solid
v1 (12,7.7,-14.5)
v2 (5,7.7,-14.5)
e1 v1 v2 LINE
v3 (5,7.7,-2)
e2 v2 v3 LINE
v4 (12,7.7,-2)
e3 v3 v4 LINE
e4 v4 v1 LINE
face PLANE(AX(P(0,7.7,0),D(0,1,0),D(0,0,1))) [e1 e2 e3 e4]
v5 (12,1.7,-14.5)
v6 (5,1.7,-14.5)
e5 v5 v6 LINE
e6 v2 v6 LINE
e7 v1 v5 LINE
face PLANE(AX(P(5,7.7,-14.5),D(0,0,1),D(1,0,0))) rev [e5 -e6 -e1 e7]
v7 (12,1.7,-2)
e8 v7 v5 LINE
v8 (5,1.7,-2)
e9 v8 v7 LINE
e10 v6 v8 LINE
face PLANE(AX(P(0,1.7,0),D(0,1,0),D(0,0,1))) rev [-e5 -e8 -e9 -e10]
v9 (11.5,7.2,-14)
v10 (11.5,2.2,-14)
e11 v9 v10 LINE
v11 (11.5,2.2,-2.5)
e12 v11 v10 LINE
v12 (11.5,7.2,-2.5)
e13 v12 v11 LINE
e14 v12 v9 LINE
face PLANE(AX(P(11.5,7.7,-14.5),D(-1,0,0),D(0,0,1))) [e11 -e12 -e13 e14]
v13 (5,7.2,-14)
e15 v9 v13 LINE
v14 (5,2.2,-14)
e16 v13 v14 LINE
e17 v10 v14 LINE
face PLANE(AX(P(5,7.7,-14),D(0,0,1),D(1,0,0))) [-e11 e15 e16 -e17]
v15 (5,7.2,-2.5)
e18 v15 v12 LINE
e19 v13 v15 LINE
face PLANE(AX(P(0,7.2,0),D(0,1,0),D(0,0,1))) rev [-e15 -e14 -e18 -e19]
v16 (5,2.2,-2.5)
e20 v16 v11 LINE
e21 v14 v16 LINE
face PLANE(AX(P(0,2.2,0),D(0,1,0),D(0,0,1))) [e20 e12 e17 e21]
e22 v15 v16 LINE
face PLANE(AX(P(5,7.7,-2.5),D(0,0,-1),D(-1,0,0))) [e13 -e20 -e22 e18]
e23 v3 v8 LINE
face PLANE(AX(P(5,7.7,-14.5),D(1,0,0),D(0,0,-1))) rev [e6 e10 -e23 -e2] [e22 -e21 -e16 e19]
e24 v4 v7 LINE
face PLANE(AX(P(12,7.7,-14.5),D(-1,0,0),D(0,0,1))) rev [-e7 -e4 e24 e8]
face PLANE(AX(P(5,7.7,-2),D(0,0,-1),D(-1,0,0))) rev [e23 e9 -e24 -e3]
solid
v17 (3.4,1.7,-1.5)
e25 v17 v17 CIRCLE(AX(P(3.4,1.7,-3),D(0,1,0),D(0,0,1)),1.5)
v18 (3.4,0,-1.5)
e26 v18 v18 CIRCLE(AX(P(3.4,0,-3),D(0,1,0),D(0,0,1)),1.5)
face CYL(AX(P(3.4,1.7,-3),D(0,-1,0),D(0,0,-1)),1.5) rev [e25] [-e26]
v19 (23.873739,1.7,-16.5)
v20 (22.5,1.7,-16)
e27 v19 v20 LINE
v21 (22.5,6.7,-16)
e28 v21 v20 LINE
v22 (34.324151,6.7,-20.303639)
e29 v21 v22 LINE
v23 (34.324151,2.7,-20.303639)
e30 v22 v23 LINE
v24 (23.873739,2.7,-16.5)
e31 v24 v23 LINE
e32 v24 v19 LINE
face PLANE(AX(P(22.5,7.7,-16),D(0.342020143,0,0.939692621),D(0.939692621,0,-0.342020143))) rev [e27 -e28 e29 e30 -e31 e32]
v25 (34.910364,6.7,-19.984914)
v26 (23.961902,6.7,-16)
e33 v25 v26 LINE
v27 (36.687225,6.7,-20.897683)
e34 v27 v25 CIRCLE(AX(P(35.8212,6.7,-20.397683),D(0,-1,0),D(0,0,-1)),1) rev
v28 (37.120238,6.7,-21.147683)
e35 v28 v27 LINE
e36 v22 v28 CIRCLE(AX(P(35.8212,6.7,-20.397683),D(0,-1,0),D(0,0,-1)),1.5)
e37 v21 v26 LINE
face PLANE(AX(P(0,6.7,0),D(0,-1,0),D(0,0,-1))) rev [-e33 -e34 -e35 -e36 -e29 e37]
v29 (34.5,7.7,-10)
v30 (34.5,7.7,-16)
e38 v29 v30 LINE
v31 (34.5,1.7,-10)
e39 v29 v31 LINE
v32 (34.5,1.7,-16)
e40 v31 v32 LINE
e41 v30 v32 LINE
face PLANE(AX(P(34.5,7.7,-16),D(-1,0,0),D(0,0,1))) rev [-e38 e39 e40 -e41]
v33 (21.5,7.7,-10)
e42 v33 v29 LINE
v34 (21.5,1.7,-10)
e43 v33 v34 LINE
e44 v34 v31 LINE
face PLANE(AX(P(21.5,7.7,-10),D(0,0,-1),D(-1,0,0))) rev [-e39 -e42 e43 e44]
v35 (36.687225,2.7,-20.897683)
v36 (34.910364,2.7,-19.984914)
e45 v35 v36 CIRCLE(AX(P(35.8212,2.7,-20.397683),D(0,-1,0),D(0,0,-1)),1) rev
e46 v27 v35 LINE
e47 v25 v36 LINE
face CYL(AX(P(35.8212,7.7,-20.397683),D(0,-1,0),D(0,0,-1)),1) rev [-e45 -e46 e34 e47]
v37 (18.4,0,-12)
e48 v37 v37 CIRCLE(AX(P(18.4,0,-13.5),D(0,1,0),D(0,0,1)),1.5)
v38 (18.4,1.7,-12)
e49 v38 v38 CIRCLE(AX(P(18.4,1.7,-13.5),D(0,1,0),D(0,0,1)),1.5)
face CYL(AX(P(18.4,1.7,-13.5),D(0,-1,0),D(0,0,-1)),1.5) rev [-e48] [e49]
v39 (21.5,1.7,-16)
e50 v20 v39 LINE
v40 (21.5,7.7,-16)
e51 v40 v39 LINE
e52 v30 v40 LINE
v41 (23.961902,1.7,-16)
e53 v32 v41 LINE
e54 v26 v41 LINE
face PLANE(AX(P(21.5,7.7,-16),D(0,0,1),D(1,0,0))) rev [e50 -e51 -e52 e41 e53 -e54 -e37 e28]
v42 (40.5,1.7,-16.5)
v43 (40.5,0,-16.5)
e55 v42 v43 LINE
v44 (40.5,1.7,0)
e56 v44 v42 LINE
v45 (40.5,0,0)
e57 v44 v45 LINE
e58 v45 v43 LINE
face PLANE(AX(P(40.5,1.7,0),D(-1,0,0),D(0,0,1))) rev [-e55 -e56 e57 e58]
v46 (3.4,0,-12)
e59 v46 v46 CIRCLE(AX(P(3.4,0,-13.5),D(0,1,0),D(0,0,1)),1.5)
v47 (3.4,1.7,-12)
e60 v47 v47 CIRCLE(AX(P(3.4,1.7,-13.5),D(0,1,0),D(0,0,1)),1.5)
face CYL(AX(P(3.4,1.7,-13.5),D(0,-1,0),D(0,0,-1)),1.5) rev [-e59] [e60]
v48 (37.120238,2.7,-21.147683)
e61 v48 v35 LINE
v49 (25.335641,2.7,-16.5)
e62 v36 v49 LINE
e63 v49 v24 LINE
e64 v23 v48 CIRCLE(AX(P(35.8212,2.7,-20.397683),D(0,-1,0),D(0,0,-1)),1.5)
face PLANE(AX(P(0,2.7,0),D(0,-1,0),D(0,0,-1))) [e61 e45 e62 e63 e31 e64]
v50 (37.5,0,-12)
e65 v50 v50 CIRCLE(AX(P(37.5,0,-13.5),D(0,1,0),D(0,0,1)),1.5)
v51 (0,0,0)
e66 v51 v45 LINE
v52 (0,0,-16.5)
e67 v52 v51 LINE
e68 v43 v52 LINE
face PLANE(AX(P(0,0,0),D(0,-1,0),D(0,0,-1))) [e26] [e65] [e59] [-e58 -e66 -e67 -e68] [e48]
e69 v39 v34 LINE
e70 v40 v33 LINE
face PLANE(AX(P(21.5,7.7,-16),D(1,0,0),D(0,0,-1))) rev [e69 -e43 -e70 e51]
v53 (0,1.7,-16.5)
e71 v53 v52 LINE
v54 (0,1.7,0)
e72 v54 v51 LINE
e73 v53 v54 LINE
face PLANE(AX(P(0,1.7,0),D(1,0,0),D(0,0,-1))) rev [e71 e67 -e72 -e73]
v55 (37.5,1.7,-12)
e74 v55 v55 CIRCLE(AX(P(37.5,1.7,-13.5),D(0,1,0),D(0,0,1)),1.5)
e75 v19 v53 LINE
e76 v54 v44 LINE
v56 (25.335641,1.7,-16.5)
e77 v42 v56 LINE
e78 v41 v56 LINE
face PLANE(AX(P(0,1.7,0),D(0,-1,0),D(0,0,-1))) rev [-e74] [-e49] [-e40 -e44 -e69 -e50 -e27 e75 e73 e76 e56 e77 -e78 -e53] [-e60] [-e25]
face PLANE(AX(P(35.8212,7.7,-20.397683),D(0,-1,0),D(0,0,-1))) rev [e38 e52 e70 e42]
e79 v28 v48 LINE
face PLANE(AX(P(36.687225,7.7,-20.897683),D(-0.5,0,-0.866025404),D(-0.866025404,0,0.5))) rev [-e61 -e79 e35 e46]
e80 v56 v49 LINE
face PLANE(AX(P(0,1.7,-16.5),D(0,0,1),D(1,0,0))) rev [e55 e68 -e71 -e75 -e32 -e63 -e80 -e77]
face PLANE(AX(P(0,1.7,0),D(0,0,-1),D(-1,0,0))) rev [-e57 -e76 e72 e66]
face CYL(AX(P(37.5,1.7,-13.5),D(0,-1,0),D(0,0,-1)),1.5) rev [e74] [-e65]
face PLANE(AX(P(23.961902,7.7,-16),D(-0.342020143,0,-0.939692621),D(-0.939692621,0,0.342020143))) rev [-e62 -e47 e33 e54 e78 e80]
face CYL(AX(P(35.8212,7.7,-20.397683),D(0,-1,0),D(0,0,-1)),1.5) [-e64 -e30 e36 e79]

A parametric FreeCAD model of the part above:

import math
import FreeCAD as App
import Part
import Sketcher
from FreeCAD import Vector
Q = App.Units.Quantity


def faces_at(feature, points):
    """Names of the faces that lie closest to the given points."""
    faces = feature.Shape.Faces
    near = lambda p: min(range(len(faces)), key=lambda i: faces[i].distToShape(Part.Vertex(*p))[0])
    return sorted({f"Face{near(p) + 1}" for p in points})

doc = App.newDocument("Part")
body = doc.addObject("PartDesign::Body", "Body")

# Sketch on XZ plane
sketch1 = doc.addObject("Sketcher::SketchObject", "Sketch")
body.addObject(sketch1)
sketch1.AttachmentSupport = (doc.XZ_Plane, [""])
sketch1.MapMode = "FlatFace"
sketch1.addGeometry(Part.LineSegment(Vector(0, -16.5, 0), Vector(0, 0, 0)), False)
sketch1.addGeometry(Part.LineSegment(Vector(0, 0, 0), Vector(40.5, 0, 0)), False)
sketch1.addGeometry(Part.LineSegment(Vector(40.5, 0, 0), Vector(40.5, -16.5, 0)), False)
sketch1.addGeometry(Part.LineSegment(Vector(40.5, -16.5, 0), Vector(0, -16.5, 0)), False)
sketch1.addGeometry(Part.Circle(Vector(3.4, -3, 0), Vector(0, 0, 1), 1.5), False)
sketch1.addGeometry(Part.Circle(Vector(3.4, -13.5, 0), Vector(0, 0, 1), 1.5), False)
sketch1.addGeometry(Part.Circle(Vector(18.4, -13.5, 0), Vector(0, 0, 1), 1.5), False)
sketch1.addGeometry(Part.Circle(Vector(37.5, -13.5, 0), Vector(0, 0, 1), 1.5), False)
sketch1.addConstraint(Sketcher.Constraint("Coincident", 0, 2, 1, 1))
sketch1.addConstraint(Sketcher.Constraint("Coincident", 1, 2, 2, 1))
sketch1.addConstraint(Sketcher.Constraint("Coincident", 2, 2, 3, 1))
sketch1.addConstraint(Sketcher.Constraint("Coincident", 3, 2, 0, 1))
sketch1.addConstraint(Sketcher.Constraint("Vertical", 0))
sketch1.addConstraint(Sketcher.Constraint("Horizontal", 1))
sketch1.addConstraint(Sketcher.Constraint("Vertical", 2))
sketch1.addConstraint(Sketcher.Constraint("Horizontal", 3))
sketch1.addConstraint(Sketcher.Constraint("Coincident", 0, 2, -1, 1))
sketch1.addConstraint(Sketcher.Constraint("Equal", 4, 5))
sketch1.addConstraint(Sketcher.Constraint("Equal", 5, 6))
sketch1.addConstraint(Sketcher.Constraint("Equal", 6, 7))
sketch1.addConstraint(Sketcher.Constraint("Horizontal", 5, 3, 6, 3))
sketch1.addConstraint(Sketcher.Constraint("Horizontal", 6, 3, 7, 3))
sketch1.addConstraint(Sketcher.Constraint("Vertical", 4, 3, 5, 3))
sketch1.addConstraint(Sketcher.Constraint("Diameter", 4, Q("3 mm")))
sketch1.addConstraint(Sketcher.Constraint("DistanceX", 1, 1, 1, 2, Q("40.5 mm")))
sketch1.addConstraint(Sketcher.Constraint("DistanceY", 0, 1, 0, 2, Q("16.5 mm")))
sketch1.addConstraint(Sketcher.Constraint("DistanceY", 4, 3, -1, 1, Q("3 mm")))
sketch1.addConstraint(Sketcher.Constraint("DistanceX", 5, 3, 6, 3, Q("15 mm")))
sketch1.addConstraint(Sketcher.Constraint("DistanceX", 7, 3, 1, 2, Q("3 mm")))
sketch1.addConstraint(Sketcher.Constraint("DistanceY", 2, 2, 7, 3, Q("3 mm")))
sketch1.addConstraint(Sketcher.Constraint("DistanceX", -1, 1, 4, 3, Q("3.4 mm")))
pad1 = doc.addObject("PartDesign::Pad", "Pad")
body.addObject(pad1)
pad1.Profile = sketch1
pad1.Length = 1.7
pad1.Reversed = True

# Sketch on XZ plane
sketch2 = doc.addObject("Sketcher::SketchObject", "Sketch001")
body.addObject(sketch2)
sketch2.AttachmentSupport = (doc.XZ_Plane, [""])
sketch2.MapMode = "FlatFace"
sketch2.AttachmentOffset = App.Placement(Vector(0, 0, -1.7), App.Rotation())
sketch2.addGeometry(Part.LineSegment(Vector(21.5, -16, 0), Vector(21.5, -10, 0)), False)
sketch2.addGeometry(Part.LineSegment(Vector(21.5, -10, 0), Vector(34.5, -10, 0)), False)
sketch2.addGeometry(Part.LineSegment(Vector(34.5, -10, 0), Vector(34.5, -16, 0)), False)
sketch2.addGeometry(Part.LineSegment(Vector(34.5, -16, 0), Vector(24, -16, 0)), False)
sketch2.addGeometry(Part.LineSegment(Vector(24, -16, 0), Vector(34.9, -20, 0)), False)
sketch2.addGeometry(Part.ArcOfCircle(Part.Circle(Vector(35.8, -20.4, 0), Vector(0, 0, 1), 1), math.radians(156), math.radians(330)), False)
sketch2.addGeometry(Part.LineSegment(Vector(36.7, -20.9, 0), Vector(37.1, -21.1, 0)), False)
sketch2.addGeometry(Part.ArcOfCircle(Part.Circle(Vector(35.8, -20.4, 0), Vector(0, 0, 1), 1.5), math.radians(176), math.radians(330)), False)
sketch2.addGeometry(Part.LineSegment(Vector(34.3, -20.3, 0), Vector(22.5, -16, 0)), False)
sketch2.addGeometry(Part.LineSegment(Vector(22.5, -16, 0), Vector(21.5, -16, 0)), False)
sketch2.addConstraint(Sketcher.Constraint("Coincident", 0, 2, 1, 1))
sketch2.addConstraint(Sketcher.Constraint("Coincident", 1, 2, 2, 1))
sketch2.addConstraint(Sketcher.Constraint("Coincident", 2, 2, 3, 1))
sketch2.addConstraint(Sketcher.Constraint("Coincident", 3, 2, 4, 1))
sketch2.addConstraint(Sketcher.Constraint("Coincident", 4, 2, 5, 1))
sketch2.addConstraint(Sketcher.Constraint("Coincident", 5, 2, 6, 1))
sketch2.addConstraint(Sketcher.Constraint("Coincident", 6, 2, 7, 2))
sketch2.addConstraint(Sketcher.Constraint("Coincident", 7, 1, 8, 1))
sketch2.addConstraint(Sketcher.Constraint("Coincident", 8, 2, 9, 1))
sketch2.addConstraint(Sketcher.Constraint("Coincident", 9, 2, 0, 1))
sketch2.addConstraint(Sketcher.Constraint("Vertical", 0))
sketch2.addConstraint(Sketcher.Constraint("Horizontal", 1))
sketch2.addConstraint(Sketcher.Constraint("Vertical", 2))
sketch2.addConstraint(Sketcher.Constraint("Horizontal", 3))
sketch2.addConstraint(Sketcher.Constraint("Horizontal", 9))
sketch2.addConstraint(Sketcher.Constraint("Coincident", 7, 3, 5, 3))
sketch2.addConstraint(Sketcher.Constraint("Parallel", 4, 8))
sketch2.addConstraint(Sketcher.Constraint("Horizontal", 3, 2, 8, 2))
sketch2.addConstraint(Sketcher.Constraint("Radius", 5, Q("1 mm")))
sketch2.addConstraint(Sketcher.Constraint("Radius", 7, Q("1.5 mm")))
sketch2.addConstraint(Sketcher.Constraint("DistanceX", 1, 1, 1, 2, Q("13 mm")))
sketch2.addConstraint(Sketcher.Constraint("DistanceX", 9, 2, 9, 1, Q("1 mm")))
sketch2.addConstraint(Sketcher.Constraint("DistanceY", 0, 1, 0, 2, Q("6 mm")))
sketch2.addConstraint(Sketcher.Constraint("Angle", 4, Q("-20 deg")))
sketch2.addConstraint(Sketcher.Constraint("Angle", 6, Q("-30 deg")))
sketch2.addConstraint(Sketcher.Constraint("DistanceY", 0, 2, -1, 1, Q("10 mm")))
sketch2.addConstraint(Sketcher.Constraint("DistanceX", -1, 1, 0, 2, Q("21.5 mm")))
sketch2.addConstraint(Sketcher.Constraint("DistanceY", 5, 2, 5, 3, Q("0.5 mm")))
sketch2.addConstraint(Sketcher.Constraint("Distance", 8, Q("12.582999 mm")))
sketch2.addConstraint(Sketcher.Constraint("DistanceX", -1, 1, 5, 3, Q("35.8212 mm")))
sketch2.addConstraint(Sketcher.Constraint("Distance", 4, Q("11.65111 mm")))
pad2 = doc.addObject("PartDesign::Pad", "Pad001")
body.addObject(pad2)
pad2.Profile = sketch2
pad2.Length = 6
pad2.Reversed = True

# Sketch on XZ plane
sketch3 = doc.addObject("Sketcher::SketchObject", "Sketch002")
body.addObject(sketch3)
sketch3.AttachmentSupport = (doc.XZ_Plane, [""])
sketch3.MapMode = "FlatFace"
sketch3.AttachmentOffset = App.Placement(Vector(0, 0, -7.7), App.Rotation())
sketch3.addGeometry(Part.LineSegment(Vector(22, -22, 0), Vector(22, -16, 0)), False)
sketch3.addGeometry(Part.LineSegment(Vector(22, -16, 0), Vector(37, -16, 0)), False)
sketch3.addGeometry(Part.LineSegment(Vector(37, -16, 0), Vector(37, -22, 0)), False)
sketch3.addGeometry(Part.LineSegment(Vector(37, -22, 0), Vector(22, -22, 0)), False)
sketch3.addConstraint(Sketcher.Constraint("Coincident", 0, 2, 1, 1))
sketch3.addConstraint(Sketcher.Constraint("Coincident", 1, 2, 2, 1))
sketch3.addConstraint(Sketcher.Constraint("Coincident", 2, 2, 3, 1))
sketch3.addConstraint(Sketcher.Constraint("Coincident", 3, 2, 0, 1))
sketch3.addConstraint(Sketcher.Constraint("Vertical", 0))
sketch3.addConstraint(Sketcher.Constraint("Horizontal", 1))
sketch3.addConstraint(Sketcher.Constraint("Vertical", 2))
sketch3.addConstraint(Sketcher.Constraint("Horizontal", 3))
sketch3.addConstraint(Sketcher.Constraint("DistanceY", 0, 2, -1, 1, Q("16 mm")))
sketch3.addConstraint(Sketcher.Constraint("DistanceX", -1, 1, 0, 2, Q("22.5 mm")))
sketch3.addConstraint(Sketcher.Constraint("DistanceX", 1, 1, 1, 2, Q("14.620238 mm")))
sketch3.addConstraint(Sketcher.Constraint("DistanceY", 0, 1, 0, 2, Q("5.897683 mm")))
pocket1 = doc.addObject("PartDesign::Pocket", "Pocket")
body.addObject(pocket1)
pocket1.Profile = sketch3
pocket1.Length = 1
pocket1.Reversed = True

# Sketch on XZ plane
sketch4 = doc.addObject("Sketcher::SketchObject", "Sketch003")
body.addObject(sketch4)
sketch4.AttachmentSupport = (doc.XZ_Plane, [""])
sketch4.MapMode = "FlatFace"
sketch4.AttachmentOffset = App.Placement(Vector(0, 0, -1.7), App.Rotation())
sketch4.addGeometry(Part.LineSegment(Vector(24, -17, 0), Vector(24, -22, 0)), False)
sketch4.addGeometry(Part.LineSegment(Vector(24, -22, 0), Vector(37, -22, 0)), False)
sketch4.addGeometry(Part.LineSegment(Vector(37, -22, 0), Vector(37, -17, 0)), False)
sketch4.addGeometry(Part.LineSegment(Vector(37, -17, 0), Vector(24, -17, 0)), False)
sketch4.addConstraint(Sketcher.Constraint("Coincident", 0, 2, 1, 1))
sketch4.addConstraint(Sketcher.Constraint("Coincident", 1, 2, 2, 1))
sketch4.addConstraint(Sketcher.Constraint("Coincident", 2, 2, 3, 1))
sketch4.addConstraint(Sketcher.Constraint("Coincident", 3, 2, 0, 1))
sketch4.addConstraint(Sketcher.Constraint("Vertical", 0))
sketch4.addConstraint(Sketcher.Constraint("Horizontal", 1))
sketch4.addConstraint(Sketcher.Constraint("Vertical", 2))
sketch4.addConstraint(Sketcher.Constraint("Horizontal", 3))
sketch4.addConstraint(Sketcher.Constraint("DistanceY", 2, 2, -1, 1, Q("16.5 mm")))
sketch4.addConstraint(Sketcher.Constraint("DistanceX", 1, 1, 1, 2, Q("13.246499 mm")))
sketch4.addConstraint(Sketcher.Constraint("DistanceY", 0, 2, 0, 1, Q("5.397683 mm")))
sketch4.addConstraint(Sketcher.Constraint("DistanceX", -1, 1, 0, 2, Q("23.873739 mm")))
pocket2 = doc.addObject("PartDesign::Pocket", "Pocket001")
body.addObject(pocket2)
pocket2.Profile = sketch4
pocket2.Length = 1
body2 = doc.addObject("PartDesign::Body", "Body001")

# Sketch on XZ plane
sketch5 = doc.addObject("Sketcher::SketchObject", "Sketch004")
body2.addObject(sketch5)
sketch5.AttachmentSupport = (doc.getObject("XZ_Plane001"), [""])
sketch5.MapMode = "FlatFace"
sketch5.AttachmentOffset = App.Placement(Vector(0, 0, -1.7), App.Rotation())
sketch5.addGeometry(Part.LineSegment(Vector(5, -14, 0), Vector(5, -2, 0)), False)
sketch5.addGeometry(Part.LineSegment(Vector(5, -2, 0), Vector(12, -2, 0)), False)
sketch5.addGeometry(Part.LineSegment(Vector(12, -2, 0), Vector(12, -14, 0)), False)
sketch5.addGeometry(Part.LineSegment(Vector(12, -14, 0), Vector(5, -14, 0)), False)
sketch5.addConstraint(Sketcher.Constraint("Coincident", 0, 2, 1, 1))
sketch5.addConstraint(Sketcher.Constraint("Coincident", 1, 2, 2, 1))
sketch5.addConstraint(Sketcher.Constraint("Coincident", 2, 2, 3, 1))
sketch5.addConstraint(Sketcher.Constraint("Coincident", 3, 2, 0, 1))
sketch5.addConstraint(Sketcher.Constraint("Vertical", 0))
sketch5.addConstraint(Sketcher.Constraint("Horizontal", 1))
sketch5.addConstraint(Sketcher.Constraint("Vertical", 2))
sketch5.addConstraint(Sketcher.Constraint("Horizontal", 3))
sketch5.addConstraint(Sketcher.Constraint("DistanceX", 1, 1, 1, 2, Q("7 mm")))
sketch5.addConstraint(Sketcher.Constraint("DistanceY", 0, 1, 0, 2, Q("12.5 mm")))
sketch5.addConstraint(Sketcher.Constraint("DistanceX", -1, 1, 0, 2, Q("5 mm")))
sketch5.addConstraint(Sketcher.Constraint("DistanceY", 0, 2, -1, 1, Q("2 mm")))
pad3 = doc.addObject("PartDesign::Pad", "Pad002")
body2.addObject(pad3)
pad3.Profile = sketch5
pad3.Length = 6
pad3.Reversed = True
doc.recompute()

thickness = doc.addObject("PartDesign::Thickness", "Thickness")
body2.addObject(thickness)
thickness.Base = (pad3, faces_at(pad3, [(5, 4.7, -8.25)]))
thickness.Value = 0.5
thickness.Reversed = True
thickness.Join = "Intersection"

doc.recompute()
